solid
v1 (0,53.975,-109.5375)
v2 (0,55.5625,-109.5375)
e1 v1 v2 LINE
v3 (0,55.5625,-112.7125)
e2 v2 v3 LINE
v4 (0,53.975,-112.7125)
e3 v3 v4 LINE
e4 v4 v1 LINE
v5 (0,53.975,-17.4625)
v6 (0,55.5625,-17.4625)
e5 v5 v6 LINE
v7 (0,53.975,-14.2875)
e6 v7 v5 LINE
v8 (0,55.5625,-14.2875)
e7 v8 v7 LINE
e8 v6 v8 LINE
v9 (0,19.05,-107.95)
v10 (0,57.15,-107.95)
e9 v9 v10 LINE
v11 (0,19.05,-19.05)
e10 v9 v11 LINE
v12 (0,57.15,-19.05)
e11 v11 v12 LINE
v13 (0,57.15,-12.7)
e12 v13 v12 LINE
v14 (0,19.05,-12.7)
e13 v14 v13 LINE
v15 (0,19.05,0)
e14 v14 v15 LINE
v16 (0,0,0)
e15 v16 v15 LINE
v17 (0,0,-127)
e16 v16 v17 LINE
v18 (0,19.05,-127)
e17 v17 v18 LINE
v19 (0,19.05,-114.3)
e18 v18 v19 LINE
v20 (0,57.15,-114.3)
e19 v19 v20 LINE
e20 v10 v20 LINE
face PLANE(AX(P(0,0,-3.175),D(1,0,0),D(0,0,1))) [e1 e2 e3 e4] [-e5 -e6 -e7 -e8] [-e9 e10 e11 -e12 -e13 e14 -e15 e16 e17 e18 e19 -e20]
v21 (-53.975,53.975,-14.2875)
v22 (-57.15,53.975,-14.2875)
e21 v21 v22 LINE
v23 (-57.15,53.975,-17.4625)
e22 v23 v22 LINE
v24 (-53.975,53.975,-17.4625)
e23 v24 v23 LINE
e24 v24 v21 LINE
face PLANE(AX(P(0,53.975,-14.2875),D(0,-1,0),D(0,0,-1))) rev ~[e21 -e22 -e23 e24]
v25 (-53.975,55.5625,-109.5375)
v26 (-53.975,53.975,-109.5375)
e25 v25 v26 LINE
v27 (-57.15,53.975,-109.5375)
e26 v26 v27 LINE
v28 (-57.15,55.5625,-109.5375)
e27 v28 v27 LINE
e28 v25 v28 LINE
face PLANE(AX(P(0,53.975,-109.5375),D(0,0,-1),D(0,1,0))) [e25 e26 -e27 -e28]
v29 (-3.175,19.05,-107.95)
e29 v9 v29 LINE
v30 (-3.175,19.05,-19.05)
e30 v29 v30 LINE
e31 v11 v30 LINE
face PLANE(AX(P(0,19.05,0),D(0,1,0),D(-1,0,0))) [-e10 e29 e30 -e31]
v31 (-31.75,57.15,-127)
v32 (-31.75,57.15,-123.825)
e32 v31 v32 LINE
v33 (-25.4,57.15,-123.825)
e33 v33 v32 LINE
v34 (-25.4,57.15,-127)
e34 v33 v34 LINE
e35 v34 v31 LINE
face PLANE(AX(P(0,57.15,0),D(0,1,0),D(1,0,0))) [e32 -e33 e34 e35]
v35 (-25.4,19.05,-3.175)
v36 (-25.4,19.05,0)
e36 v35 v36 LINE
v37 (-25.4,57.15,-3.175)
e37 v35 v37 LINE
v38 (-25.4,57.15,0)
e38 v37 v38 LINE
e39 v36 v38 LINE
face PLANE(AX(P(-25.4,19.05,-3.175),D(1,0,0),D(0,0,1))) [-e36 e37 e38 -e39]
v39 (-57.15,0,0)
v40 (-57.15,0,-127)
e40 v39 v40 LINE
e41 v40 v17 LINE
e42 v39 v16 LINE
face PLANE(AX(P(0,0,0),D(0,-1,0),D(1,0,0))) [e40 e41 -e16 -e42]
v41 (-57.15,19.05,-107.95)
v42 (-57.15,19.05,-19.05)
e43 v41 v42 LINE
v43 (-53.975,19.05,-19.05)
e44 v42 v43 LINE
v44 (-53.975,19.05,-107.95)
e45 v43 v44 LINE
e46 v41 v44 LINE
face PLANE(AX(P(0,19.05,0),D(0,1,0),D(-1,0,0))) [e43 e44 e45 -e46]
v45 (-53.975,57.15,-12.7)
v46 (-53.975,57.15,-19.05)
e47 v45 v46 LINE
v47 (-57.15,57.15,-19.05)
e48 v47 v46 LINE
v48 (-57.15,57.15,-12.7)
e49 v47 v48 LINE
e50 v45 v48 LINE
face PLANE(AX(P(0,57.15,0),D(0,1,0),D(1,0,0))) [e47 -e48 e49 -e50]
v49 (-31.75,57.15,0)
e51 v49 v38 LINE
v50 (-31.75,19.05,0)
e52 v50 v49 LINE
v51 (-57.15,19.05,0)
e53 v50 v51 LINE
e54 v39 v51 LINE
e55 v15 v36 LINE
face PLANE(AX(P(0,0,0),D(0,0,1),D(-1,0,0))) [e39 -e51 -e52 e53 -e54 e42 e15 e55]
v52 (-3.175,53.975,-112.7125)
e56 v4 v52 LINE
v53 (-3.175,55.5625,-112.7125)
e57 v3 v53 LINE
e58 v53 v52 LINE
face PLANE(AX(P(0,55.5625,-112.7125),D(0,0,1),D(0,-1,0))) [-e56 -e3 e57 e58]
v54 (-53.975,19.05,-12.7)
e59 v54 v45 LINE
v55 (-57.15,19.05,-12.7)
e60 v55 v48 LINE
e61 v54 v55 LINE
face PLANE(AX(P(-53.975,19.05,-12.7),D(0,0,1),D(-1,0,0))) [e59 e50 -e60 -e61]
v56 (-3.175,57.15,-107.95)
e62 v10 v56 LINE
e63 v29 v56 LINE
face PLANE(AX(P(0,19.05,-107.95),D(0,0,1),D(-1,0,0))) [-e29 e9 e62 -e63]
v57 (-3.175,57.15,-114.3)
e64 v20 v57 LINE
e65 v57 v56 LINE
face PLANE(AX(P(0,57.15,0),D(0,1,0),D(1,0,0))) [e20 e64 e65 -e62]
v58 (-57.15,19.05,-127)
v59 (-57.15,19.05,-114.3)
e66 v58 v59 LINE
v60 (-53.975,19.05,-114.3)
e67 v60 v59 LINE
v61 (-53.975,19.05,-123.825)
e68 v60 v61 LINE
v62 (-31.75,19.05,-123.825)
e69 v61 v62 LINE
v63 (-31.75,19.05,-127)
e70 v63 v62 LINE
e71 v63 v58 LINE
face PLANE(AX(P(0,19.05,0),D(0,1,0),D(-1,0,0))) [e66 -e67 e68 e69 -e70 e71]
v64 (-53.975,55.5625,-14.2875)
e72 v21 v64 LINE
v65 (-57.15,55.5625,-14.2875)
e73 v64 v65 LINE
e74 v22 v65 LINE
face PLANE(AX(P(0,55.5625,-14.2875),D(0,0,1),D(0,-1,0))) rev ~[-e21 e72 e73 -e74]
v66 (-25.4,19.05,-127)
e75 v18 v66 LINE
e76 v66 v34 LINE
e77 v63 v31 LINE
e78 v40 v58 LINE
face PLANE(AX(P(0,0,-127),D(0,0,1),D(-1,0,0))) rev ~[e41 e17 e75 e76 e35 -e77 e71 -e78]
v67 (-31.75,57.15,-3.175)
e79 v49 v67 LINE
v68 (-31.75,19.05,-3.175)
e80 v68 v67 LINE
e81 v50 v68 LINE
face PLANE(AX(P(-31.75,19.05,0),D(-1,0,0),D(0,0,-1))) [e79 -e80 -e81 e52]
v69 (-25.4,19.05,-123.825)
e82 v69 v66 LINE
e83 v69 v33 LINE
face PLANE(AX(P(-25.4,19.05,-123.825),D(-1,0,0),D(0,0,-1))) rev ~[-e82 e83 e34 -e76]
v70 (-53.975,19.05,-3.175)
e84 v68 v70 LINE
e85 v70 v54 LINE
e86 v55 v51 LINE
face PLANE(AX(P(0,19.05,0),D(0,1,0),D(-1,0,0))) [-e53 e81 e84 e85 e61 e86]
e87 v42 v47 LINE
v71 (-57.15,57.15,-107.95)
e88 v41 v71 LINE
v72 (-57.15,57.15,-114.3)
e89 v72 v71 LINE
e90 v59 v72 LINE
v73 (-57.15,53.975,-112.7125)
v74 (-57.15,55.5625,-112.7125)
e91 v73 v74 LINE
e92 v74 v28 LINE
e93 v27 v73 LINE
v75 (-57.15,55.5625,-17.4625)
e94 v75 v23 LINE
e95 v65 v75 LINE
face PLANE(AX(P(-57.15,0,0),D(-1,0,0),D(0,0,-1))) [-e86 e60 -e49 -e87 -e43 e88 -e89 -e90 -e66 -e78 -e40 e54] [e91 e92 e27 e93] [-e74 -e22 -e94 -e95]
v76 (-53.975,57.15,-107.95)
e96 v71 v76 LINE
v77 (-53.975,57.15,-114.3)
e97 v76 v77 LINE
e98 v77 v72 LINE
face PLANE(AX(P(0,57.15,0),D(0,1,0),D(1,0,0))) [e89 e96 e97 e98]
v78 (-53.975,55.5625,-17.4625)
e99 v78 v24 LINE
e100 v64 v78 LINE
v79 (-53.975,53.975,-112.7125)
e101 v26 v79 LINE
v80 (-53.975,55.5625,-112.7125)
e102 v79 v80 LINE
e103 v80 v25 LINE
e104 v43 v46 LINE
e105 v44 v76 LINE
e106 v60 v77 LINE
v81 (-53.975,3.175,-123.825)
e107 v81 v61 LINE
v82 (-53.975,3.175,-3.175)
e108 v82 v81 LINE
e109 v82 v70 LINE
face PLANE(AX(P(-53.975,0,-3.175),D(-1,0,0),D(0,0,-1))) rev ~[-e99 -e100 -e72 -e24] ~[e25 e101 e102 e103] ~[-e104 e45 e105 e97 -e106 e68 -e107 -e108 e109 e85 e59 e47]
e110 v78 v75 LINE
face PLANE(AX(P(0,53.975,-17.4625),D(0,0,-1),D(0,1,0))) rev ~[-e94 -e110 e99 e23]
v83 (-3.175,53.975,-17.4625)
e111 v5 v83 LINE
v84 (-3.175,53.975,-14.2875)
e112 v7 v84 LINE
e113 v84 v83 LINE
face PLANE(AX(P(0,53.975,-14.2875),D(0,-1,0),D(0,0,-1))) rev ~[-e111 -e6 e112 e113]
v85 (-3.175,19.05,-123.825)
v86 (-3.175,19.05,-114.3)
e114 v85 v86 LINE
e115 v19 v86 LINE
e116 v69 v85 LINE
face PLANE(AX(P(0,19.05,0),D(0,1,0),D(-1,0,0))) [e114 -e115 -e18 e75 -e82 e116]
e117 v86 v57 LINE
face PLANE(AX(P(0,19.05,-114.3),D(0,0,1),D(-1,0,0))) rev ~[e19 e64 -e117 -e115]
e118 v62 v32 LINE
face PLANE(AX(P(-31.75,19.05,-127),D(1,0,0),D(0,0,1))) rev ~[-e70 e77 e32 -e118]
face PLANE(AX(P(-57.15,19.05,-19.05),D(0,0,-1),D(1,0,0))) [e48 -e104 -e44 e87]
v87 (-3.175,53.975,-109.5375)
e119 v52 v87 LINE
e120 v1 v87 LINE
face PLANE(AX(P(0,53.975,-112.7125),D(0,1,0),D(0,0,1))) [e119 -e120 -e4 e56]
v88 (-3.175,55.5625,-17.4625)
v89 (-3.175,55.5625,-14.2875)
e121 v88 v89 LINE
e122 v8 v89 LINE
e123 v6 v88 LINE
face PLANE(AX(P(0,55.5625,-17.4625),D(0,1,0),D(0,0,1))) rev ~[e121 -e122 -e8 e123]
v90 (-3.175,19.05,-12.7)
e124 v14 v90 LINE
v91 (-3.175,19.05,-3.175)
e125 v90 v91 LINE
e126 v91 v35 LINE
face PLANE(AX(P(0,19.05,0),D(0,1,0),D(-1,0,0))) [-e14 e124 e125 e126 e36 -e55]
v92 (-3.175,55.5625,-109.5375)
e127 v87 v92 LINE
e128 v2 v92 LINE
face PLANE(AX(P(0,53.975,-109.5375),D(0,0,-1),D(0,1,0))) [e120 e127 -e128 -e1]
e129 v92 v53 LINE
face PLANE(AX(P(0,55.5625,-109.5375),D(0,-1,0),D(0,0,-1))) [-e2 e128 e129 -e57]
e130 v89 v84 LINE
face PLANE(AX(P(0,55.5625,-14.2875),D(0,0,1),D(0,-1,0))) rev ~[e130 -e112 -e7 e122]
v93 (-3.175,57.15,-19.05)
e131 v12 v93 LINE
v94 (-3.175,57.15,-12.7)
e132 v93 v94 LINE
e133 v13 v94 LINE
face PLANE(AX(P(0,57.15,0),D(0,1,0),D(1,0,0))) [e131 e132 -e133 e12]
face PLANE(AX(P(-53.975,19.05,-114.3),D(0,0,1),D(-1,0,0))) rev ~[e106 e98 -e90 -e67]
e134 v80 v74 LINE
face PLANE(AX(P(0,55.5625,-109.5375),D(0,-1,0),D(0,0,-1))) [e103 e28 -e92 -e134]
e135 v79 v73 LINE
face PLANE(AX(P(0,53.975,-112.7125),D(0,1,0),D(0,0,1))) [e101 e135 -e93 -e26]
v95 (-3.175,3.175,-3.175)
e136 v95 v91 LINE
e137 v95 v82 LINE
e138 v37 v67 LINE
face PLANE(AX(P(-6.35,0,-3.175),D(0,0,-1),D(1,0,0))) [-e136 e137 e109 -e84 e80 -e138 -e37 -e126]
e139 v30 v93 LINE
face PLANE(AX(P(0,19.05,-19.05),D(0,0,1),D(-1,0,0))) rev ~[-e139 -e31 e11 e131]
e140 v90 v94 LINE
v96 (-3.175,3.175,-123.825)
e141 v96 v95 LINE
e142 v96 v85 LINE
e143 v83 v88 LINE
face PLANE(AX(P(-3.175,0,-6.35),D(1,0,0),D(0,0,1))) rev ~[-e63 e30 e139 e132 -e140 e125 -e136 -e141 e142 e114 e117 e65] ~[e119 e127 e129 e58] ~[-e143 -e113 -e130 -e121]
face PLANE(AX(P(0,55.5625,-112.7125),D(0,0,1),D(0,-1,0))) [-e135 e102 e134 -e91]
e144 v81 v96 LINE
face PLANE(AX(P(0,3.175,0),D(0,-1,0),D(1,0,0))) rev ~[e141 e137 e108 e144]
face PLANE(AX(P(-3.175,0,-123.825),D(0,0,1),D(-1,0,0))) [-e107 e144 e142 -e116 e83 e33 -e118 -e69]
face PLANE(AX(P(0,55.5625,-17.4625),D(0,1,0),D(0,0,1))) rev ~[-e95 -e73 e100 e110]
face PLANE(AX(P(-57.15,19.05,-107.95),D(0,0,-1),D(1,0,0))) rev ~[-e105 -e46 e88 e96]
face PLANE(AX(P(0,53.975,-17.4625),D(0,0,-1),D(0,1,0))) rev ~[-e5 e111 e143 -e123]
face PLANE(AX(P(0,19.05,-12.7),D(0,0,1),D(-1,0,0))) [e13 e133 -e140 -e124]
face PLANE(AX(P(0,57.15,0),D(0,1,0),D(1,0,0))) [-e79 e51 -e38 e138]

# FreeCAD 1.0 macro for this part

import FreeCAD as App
import Part
import Sketcher

V = App.Vector
Q = App.Units.Quantity


def add_polygon(sketch, points):
    """Adds a closed chain of lines whose ends are joined by coincident constraints."""
    first, n = sketch.GeometryCount, len(points)
    for a, b in zip(points, points[1:] + points[:1]):
        sketch.addGeometry(Part.LineSegment(App.Vector(*a, 0), App.Vector(*b, 0)), False)
    for i in range(n):
        sketch.addConstraint(Sketcher.Constraint("Coincident", first + i, 2, first + (i + 1) % n, 1))

doc = App.newDocument("Part")
body = doc.addObject("PartDesign::Body", "Body")

sketch1 = body.newObject("Sketcher::SketchObject", "Sketch")
sketch1.AttachmentSupport = (doc.getObject("XZ_Plane"), [""])
sketch1.MapMode = "FlatFace"
add_polygon(sketch1, [(0, 0), (0, -127), (-57, -127), (-57, 0)])
add_polygon(sketch1, [(-3, -3), (-54, -3), (-54, -124), (-3, -124)])
sketch1.addConstraint(Sketcher.Constraint("Vertical", 0))
sketch1.addConstraint(Sketcher.Constraint("Horizontal", 1))
sketch1.addConstraint(Sketcher.Constraint("Vertical", 2))
sketch1.addConstraint(Sketcher.Constraint("Horizontal", 3))
sketch1.addConstraint(Sketcher.Constraint("Horizontal", 4))
sketch1.addConstraint(Sketcher.Constraint("Vertical", 5))
sketch1.addConstraint(Sketcher.Constraint("Horizontal", 6))
sketch1.addConstraint(Sketcher.Constraint("Vertical", 7))
sketch1.addConstraint(Sketcher.Constraint("Coincident", 3, 2, -1, 1))
sketch1.addConstraint(Sketcher.Constraint("DistanceX", 4, 2, 4, 1, Q("2 in")))
sketch1.addConstraint(Sketcher.Constraint("DistanceY", 0, 2, 0, 1, Q("5 in")))
sketch1.addConstraint(Sketcher.Constraint("DistanceY", 4, 2, -1, 1, Q("0.125 in")))
sketch1.addConstraint(Sketcher.Constraint("DistanceX", 6, 2, -1, 1, Q("0.125 in")))
sketch1.addConstraint(Sketcher.Constraint("DistanceX", 2, 2, 4, 2, Q("0.125 in")))
sketch1.addConstraint(Sketcher.Constraint("DistanceY", 1, 2, 5, 2, Q("0.125 in")))
pad1 = body.newObject("PartDesign::Pad", "Pad")
pad1.Profile = sketch1
pad1.Length = Q("0.75 in")
pad1.Reversed = True

sketch2 = body.newObject("Sketcher::SketchObject", "Sketch001")
sketch2.AttachmentSupport = (doc.getObject("XZ_Plane"), [""])
sketch2.MapMode = "FlatFace"
add_polygon(sketch2, [(-3, -124), (-3, -3), (-54, -3), (-54, -124)])
sketch2.addConstraint(Sketcher.Constraint("Vertical", 0))
sketch2.addConstraint(Sketcher.Constraint("Horizontal", 1))
sketch2.addConstraint(Sketcher.Constraint("Vertical", 2))
sketch2.addConstraint(Sketcher.Constraint("Horizontal", 3))
sketch2.addConstraint(Sketcher.Constraint("DistanceX", 1, 2, 1, 1, Q("2 in")))
sketch2.addConstraint(Sketcher.Constraint("DistanceY", 0, 1, 0, 2, Q("4.75 in")))
sketch2.addConstraint(Sketcher.Constraint("DistanceX", 0, 2, -1, 1, Q("0.125 in")))
sketch2.addConstraint(Sketcher.Constraint("DistanceY", 0, 2, -1, 1, Q("0.125 in")))
pad2 = body.newObject("PartDesign::Pad", "Pad001")
pad2.Profile = sketch2
pad2.Length = Q("0.125 in")
pad2.Reversed = True

sketch3 = body.newObject("Sketcher::SketchObject", "Sketch002")
sketch3.AttachmentSupport = (doc.getObject("XZ_Plane"), [""])
sketch3.MapMode = "FlatFace"
sketch3.AttachmentOffset = App.Placement(V(0, 0, -0.75 * 25.4), App.Rotation())
add_polygon(sketch3, [(-25.4, -123.8), (-25.4, -127), (-31.8, -127), (-31.8, -123.8)])
add_polygon(sketch3, [(0, -108), (0, -114.3), (-3.2, -114.3), (-3.2, -108)])
add_polygon(sketch3, [(0, -12.7), (0, -19.1), (-3.2, -19.1), (-3.2, -12.7)])
add_polygon(sketch3, [(-54, -114.3), (-57.1, -114.3), (-57.1, -108), (-54, -108)])
add_polygon(sketch3, [(-54, -19.1), (-57.1, -19.1), (-57.1, -12.7), (-54, -12.7)])
add_polygon(sketch3, [(-31.8, 0), (-25.4, 0), (-25.4, -3.2), (-31.8, -3.2)])
sketch3.addConstraint(Sketcher.Constraint("Vertical", 0))
sketch3.addConstraint(Sketcher.Constraint("Horizontal", 1))
sketch3.addConstraint(Sketcher.Constraint("Vertical", 2))
sketch3.addConstraint(Sketcher.Constraint("Horizontal", 3))
sketch3.addConstraint(Sketcher.Constraint("Vertical", 4))
sketch3.addConstraint(Sketcher.Constraint("Horizontal", 5))
sketch3.addConstraint(Sketcher.Constraint("Vertical", 6))
sketch3.addConstraint(Sketcher.Constraint("Horizontal", 7))
sketch3.addConstraint(Sketcher.Constraint("Vertical", 8))
sketch3.addConstraint(Sketcher.Constraint("Horizontal", 9))
sketch3.addConstraint(Sketcher.Constraint("Vertical", 10))
sketch3.addConstraint(Sketcher.Constraint("Horizontal", 11))
sketch3.addConstraint(Sketcher.Constraint("Horizontal", 12))
sketch3.addConstraint(Sketcher.Constraint("Vertical", 13))
sketch3.addConstraint(Sketcher.Constraint("Horizontal", 14))
sketch3.addConstraint(Sketcher.Constraint("Vertical", 15))
sketch3.addConstraint(Sketcher.Constraint("Horizontal", 16))
sketch3.addConstraint(Sketcher.Constraint("Vertical", 17))
sketch3.addConstraint(Sketcher.Constraint("Horizontal", 18))
sketch3.addConstraint(Sketcher.Constraint("Vertical", 19))
sketch3.addConstraint(Sketcher.Constraint("Horizontal", 20))
sketch3.addConstraint(Sketcher.Constraint("Vertical", 21))
sketch3.addConstraint(Sketcher.Constraint("Horizontal", 22))
sketch3.addConstraint(Sketcher.Constraint("Vertical", 23))
sketch3.addConstraint(Sketcher.Constraint("PointOnObject", 4, 2, -2))
sketch3.addConstraint(Sketcher.Constraint("PointOnObject", 8, 2, -2))
sketch3.addConstraint(Sketcher.Constraint("PointOnObject", 20, 2, -1))
sketch3.addConstraint(Sketcher.Constraint("Horizontal", 5, 2, 12, 2))
sketch3.addConstraint(Sketcher.Constraint("Horizontal", 7, 2, 13, 2))
sketch3.addConstraint(Sketcher.Constraint("Horizontal", 9, 2, 16, 2))
sketch3.addConstraint(Sketcher.Constraint("Horizontal", 11, 2, 17, 2))
sketch3.addConstraint(Sketcher.Constraint("Vertical", 6, 2, 9, 2))
sketch3.addConstraint(Sketcher.Constraint("Vertical", 13, 2, 16, 2))
sketch3.addConstraint(Sketcher.Constraint("Vertical", 15, 2, 18, 2))
sketch3.addConstraint(Sketcher.Constraint("Vertical", 3, 2, 20, 2))
sketch3.addConstraint(Sketcher.Constraint("Vertical", 2, 2, 22, 2))
sketch3.addConstraint(Sketcher.Constraint("Equal", 11, 12))
sketch3.addConstraint(Sketcher.Constraint("Equal", 18, 0))
sketch3.addConstraint(Sketcher.Constraint("Equal", 22, 4))
sketch3.addConstraint(Sketcher.Constraint("Equal", 6, 8))
sketch3.addConstraint(Sketcher.Constraint("Equal", 2, 21))
sketch3.addConstraint(Sketcher.Constraint("DistanceY", 0, 2, -1, 1, Q("5 in")))
sketch3.addConstraint(Sketcher.Constraint("DistanceX", 1, 2, 1, 1, Q("0.25 in")))
sketch3.addConstraint(Sketcher.Constraint("DistanceY", 10, 2, -1, 1, Q("0.5 in")))
sketch3.addConstraint(Sketcher.Constraint("DistanceY", 0, 2, 4, 2, Q("0.5 in")))
sketch3.addConstraint(Sketcher.Constraint("DistanceX", 5, 2, 5, 1, Q("0.125 in")))
sketch3.addConstraint(Sketcher.Constraint("DistanceX", 12, 2, -1, 1, Q("2.25 in")))
sketch3.addConstraint(Sketcher.Constraint("DistanceX", 0, 2, -1, 1, Q("1 in")))
pad3 = body.newObject("PartDesign::Pad", "Pad002")
pad3.Profile = sketch3
pad3.Length = Q("1.5 in")
pad3.Reversed = True

sketch4 = body.newObject("Sketcher::SketchObject", "Sketch003")
sketch4.AttachmentSupport = (doc.getObject("YZ_Plane"), [""])
sketch4.MapMode = "FlatFace"
add_polygon(sketch4, [(55.6, -112.7), (55.6, -109.5), (54, -109.5), (54, -112.7)])
add_polygon(sketch4, [(55.6, -14.3), (54, -14.3), (54, -17.5), (55.6, -17.5)])
sketch4.addConstraint(Sketcher.Constraint("Vertical", 0))
sketch4.addConstraint(Sketcher.Constraint("Horizontal", 1))
sketch4.addConstraint(Sketcher.Constraint("Vertical", 2))
sketch4.addConstraint(Sketcher.Constraint("Horizontal", 3))
sketch4.addConstraint(Sketcher.Constraint("Horizontal", 4))
sketch4.addConstraint(Sketcher.Constraint("Vertical", 5))
sketch4.addConstraint(Sketcher.Constraint("Horizontal", 6))
sketch4.addConstraint(Sketcher.Constraint("Vertical", 7))
sketch4.addConstraint(Sketcher.Constraint("Vertical", 2, 2, 4, 2))
sketch4.addConstraint(Sketcher.Constraint("Vertical", 3, 2, 6, 2))
sketch4.addConstraint(Sketcher.Constraint("Equal", 2, 5))
sketch4.addConstraint(Sketcher.Constraint("DistanceX", 1, 2, 1, 1, Q("0.0625 in")))
sketch4.addConstraint(Sketcher.Constraint("DistanceY", 0, 1, 0, 2, Q("0.125 in")))
sketch4.addConstraint(Sketcher.Constraint("DistanceY", 1, 2, 4, 2, Q("3.75 in")))
sketch4.addConstraint(Sketcher.Constraint("DistanceX", -1, 1, 0, 2, Q("2.1875 in")))
sketch4.addConstraint(Sketcher.Constraint("DistanceY", 0, 2, -1, 1, Q("4.3125 in")))
pocket1 = body.newObject("PartDesign::Pocket", "Pocket")
pocket1.Profile = sketch4
pocket1.Length = Q("999 in")

doc.recompute()
